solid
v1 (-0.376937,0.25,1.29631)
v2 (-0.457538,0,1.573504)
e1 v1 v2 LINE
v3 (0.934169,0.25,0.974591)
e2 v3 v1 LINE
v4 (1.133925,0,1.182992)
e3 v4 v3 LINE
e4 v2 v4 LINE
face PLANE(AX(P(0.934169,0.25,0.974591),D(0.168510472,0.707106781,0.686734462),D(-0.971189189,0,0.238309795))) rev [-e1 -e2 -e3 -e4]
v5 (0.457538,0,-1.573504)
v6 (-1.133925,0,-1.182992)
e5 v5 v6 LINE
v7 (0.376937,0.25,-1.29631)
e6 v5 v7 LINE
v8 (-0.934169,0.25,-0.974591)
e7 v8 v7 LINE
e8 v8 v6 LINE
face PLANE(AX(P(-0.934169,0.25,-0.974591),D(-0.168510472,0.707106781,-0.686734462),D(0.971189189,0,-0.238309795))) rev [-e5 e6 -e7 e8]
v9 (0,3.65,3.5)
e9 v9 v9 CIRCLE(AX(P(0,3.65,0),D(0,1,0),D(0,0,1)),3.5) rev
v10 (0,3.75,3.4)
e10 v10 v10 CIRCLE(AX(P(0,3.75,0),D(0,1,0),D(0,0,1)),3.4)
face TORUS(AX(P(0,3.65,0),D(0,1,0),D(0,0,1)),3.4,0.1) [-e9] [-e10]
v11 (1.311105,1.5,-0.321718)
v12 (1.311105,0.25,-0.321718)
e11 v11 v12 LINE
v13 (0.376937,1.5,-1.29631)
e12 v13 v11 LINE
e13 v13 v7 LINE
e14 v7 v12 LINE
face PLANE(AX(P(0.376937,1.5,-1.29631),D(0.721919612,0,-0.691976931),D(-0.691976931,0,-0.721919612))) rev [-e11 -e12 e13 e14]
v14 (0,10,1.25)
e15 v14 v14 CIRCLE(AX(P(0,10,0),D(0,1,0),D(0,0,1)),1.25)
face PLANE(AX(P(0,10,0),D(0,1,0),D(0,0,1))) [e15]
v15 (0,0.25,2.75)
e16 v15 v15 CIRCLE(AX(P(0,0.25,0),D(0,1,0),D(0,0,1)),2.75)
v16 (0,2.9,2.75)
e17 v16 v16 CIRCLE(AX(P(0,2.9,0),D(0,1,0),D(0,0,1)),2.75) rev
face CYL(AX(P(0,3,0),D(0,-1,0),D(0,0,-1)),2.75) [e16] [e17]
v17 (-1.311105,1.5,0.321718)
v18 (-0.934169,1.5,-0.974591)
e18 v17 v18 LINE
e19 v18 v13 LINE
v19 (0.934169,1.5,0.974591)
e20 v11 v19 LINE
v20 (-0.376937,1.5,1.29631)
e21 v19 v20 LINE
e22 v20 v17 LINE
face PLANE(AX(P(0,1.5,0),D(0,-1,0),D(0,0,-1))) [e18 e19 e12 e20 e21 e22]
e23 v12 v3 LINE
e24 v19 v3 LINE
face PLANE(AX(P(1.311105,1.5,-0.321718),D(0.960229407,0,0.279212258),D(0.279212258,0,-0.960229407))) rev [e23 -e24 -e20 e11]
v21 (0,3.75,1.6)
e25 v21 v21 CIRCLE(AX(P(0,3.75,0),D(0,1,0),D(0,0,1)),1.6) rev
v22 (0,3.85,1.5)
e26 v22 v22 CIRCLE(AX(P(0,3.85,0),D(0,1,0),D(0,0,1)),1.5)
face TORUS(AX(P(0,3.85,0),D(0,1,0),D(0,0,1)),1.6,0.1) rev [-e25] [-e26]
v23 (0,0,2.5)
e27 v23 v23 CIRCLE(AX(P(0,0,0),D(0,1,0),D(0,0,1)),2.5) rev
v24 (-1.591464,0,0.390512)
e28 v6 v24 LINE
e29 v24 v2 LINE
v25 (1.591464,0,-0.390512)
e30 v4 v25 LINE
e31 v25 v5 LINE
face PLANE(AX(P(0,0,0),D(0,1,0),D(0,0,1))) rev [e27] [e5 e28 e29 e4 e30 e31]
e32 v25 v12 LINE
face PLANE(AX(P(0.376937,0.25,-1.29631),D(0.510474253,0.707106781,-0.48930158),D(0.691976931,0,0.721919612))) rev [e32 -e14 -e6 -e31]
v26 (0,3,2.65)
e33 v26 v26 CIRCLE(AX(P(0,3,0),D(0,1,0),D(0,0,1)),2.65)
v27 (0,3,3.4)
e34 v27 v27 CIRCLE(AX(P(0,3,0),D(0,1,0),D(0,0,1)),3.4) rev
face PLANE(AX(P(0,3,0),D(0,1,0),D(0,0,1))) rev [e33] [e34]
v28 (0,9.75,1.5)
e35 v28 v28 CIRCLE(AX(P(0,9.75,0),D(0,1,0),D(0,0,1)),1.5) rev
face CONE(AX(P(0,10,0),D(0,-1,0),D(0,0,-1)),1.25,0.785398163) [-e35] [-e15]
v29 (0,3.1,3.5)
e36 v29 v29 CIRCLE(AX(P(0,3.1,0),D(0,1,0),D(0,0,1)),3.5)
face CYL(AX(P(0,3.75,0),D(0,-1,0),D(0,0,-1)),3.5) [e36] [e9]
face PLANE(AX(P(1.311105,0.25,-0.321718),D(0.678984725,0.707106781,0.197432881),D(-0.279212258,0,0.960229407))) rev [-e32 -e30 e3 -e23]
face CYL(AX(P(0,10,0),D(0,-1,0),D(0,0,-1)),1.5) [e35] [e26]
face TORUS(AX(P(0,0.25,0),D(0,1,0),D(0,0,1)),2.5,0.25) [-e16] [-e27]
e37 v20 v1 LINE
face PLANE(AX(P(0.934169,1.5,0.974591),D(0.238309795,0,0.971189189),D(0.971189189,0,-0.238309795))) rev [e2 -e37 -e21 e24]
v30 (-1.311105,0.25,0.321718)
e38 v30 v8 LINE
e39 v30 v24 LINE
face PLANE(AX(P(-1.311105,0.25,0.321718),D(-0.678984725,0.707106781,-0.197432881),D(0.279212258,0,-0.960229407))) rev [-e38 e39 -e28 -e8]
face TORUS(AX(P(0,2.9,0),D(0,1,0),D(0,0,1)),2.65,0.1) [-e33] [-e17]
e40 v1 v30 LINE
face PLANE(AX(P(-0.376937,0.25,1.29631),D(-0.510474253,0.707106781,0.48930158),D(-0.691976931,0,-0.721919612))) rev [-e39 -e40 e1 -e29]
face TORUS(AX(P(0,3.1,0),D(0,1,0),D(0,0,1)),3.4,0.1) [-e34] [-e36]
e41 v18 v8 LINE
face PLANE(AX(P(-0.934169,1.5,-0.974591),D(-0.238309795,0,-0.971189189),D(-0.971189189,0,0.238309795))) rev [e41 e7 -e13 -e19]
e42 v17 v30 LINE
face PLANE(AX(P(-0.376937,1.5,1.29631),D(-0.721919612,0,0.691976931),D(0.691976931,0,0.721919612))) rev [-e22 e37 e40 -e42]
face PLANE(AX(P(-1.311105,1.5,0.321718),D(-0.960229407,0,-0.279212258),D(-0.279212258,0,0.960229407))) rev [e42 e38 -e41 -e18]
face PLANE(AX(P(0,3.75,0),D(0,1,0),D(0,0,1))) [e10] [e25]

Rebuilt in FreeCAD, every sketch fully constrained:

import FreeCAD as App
import Part
import Sketcher

V = App.Vector


def edges_at(feature, points):
    """Names of the edges that pass closest to the given points."""
    edges = feature.Shape.Edges
    near = lambda p: min(range(len(edges)), key=lambda i: edges[i].distToShape(Part.Vertex(*p))[0])
    return sorted({f"Edge{near(p) + 1}" for p in points})

doc = App.newDocument("Part")
body = doc.addObject("PartDesign::Body", "Body")

sketch1 = doc.addObject("Sketcher::SketchObject", "Sketch")
body.addObject(sketch1)
sketch1.AttachmentSupport = (doc.XZ_Plane, [""])
sketch1.MapMode = "FlatFace"
sketch1.addGeometry(Part.Circle(V(0, 0, 0), V(0, 0, 1), 2.8), False)
sketch1.addConstraint(Sketcher.Constraint("Coincident", 0, 3, -1, 1))
sketch1.addConstraint(Sketcher.Constraint("Diameter", 0, 5.5))
pad1 = doc.addObject("PartDesign::Pad", "Pad")
body.addObject(pad1)
pad1.Profile = sketch1
pad1.Length = 3
pad1.Reversed = True

sketch2 = doc.addObject("Sketcher::SketchObject", "Sketch001")
body.addObject(sketch2)
sketch2.AttachmentSupport = (doc.XZ_Plane, [""])
sketch2.MapMode = "FlatFace"
sketch2.AttachmentOffset = App.Placement(V(0, 0, -3), App.Rotation())
sketch2.addGeometry(Part.Circle(V(0, 0, 0), V(0, 0, 1), 1.5), False)
sketch2.addConstraint(Sketcher.Constraint("Coincident", 0, 3, -1, 1))
sketch2.addConstraint(Sketcher.Constraint("Diameter", 0, 3.0))
pad2 = doc.addObject("PartDesign::Pad", "Pad001")
body.addObject(pad2)
pad2.Profile = sketch2
pad2.Length = 7
pad2.Reversed = True

sketch3 = doc.addObject("Sketcher::SketchObject", "Sketch002")
body.addObject(sketch3)
sketch3.AttachmentSupport = (doc.XZ_Plane, [""])
sketch3.MapMode = "FlatFace"
sketch3.addGeometry(Part.LineSegment(V(0.9, 1, 0), V(-0.4, 1.3, 0)), False)
sketch3.addGeometry(Part.LineSegment(V(-0.4, 1.3, 0), V(-1.3, 0.3, 0)), False)
sketch3.addGeometry(Part.LineSegment(V(-1.3, 0.3, 0), V(-0.9, -1, 0)), False)
sketch3.addGeometry(Part.LineSegment(V(-0.9, -1, 0), V(0.4, -1.3, 0)), False)
sketch3.addGeometry(Part.LineSegment(V(0.4, -1.3, 0), V(1.3, -0.3, 0)), False)
sketch3.addGeometry(Part.LineSegment(V(1.3, -0.3, 0), V(0.9, 1, 0)), False)
sketch3.addConstraint(Sketcher.Constraint("Coincident", 0, 2, 1, 1))
sketch3.addConstraint(Sketcher.Constraint("Coincident", 1, 2, 2, 1))
sketch3.addConstraint(Sketcher.Constraint("Coincident", 2, 2, 3, 1))
sketch3.addConstraint(Sketcher.Constraint("Coincident", 3, 2, 4, 1))
sketch3.addConstraint(Sketcher.Constraint("Coincident", 4, 2, 5, 1))
sketch3.addConstraint(Sketcher.Constraint("Coincident", 5, 2, 0, 1))
sketch3.addConstraint(Sketcher.Constraint("Symmetric", 0, 2, 3, 2, -1, 1))
sketch3.addConstraint(Sketcher.Constraint("Symmetric", 1, 2, 4, 2, -1, 1))
sketch3.addConstraint(Sketcher.Constraint("Symmetric", 2, 2, 5, 2, -1, 1))
sketch3.addConstraint(Sketcher.Constraint("Equal", 0, 1))
sketch3.addConstraint(Sketcher.Constraint("Equal", 1, 2))
sketch3.addConstraint(Sketcher.Constraint("Distance", 0, 1.35))
sketch3.addConstraint(Sketcher.Constraint("DistanceY", 2, 2, 0, 2, 2.270901))
sketch3.addConstraint(Sketcher.Constraint("DistanceY", -1, 1, 0, 2, 1.29631))
sketch3.addConstraint(Sketcher.Constraint("DistanceY", -1, 1, 1, 2, 0.321718))
pocket1 = doc.addObject("PartDesign::Pocket", "Pocket")
body.addObject(pocket1)
pocket1.Profile = sketch3
pocket1.Length = 1.5
doc.recompute()

chamfer = doc.addObject("PartDesign::Chamfer", "Chamfer")
body.addObject(chamfer)
chamfer.Base = (pocket1, edges_at(pocket1, [
    (1.123, 0, 0.326),
    (0.279, 0, 1.135),
    (-0.844, 0, 0.809),
    (-1.123, 0, -0.326),
    (-0.279, 0, -1.135),
    (0.844, 0, -0.809),
]))
chamfer.Size = 0.25
doc.recompute()

fillet = doc.addObject("PartDesign::Fillet", "Fillet")
body.addObject(fillet)
fillet.Base = (chamfer, edges_at(chamfer, [(0, 0, -2.75)]))
fillet.Radius = 0.25
doc.recompute()

chamfer2 = doc.addObject("PartDesign::Chamfer", "Chamfer001")
body.addObject(chamfer2)
chamfer2.Base = (fillet, edges_at(fillet, [(0, 10, -1.5)]))
chamfer2.Size = 0.25
doc.recompute()

fillet2 = doc.addObject("PartDesign::Fillet", "Fillet001")
body.addObject(fillet2)
fillet2.Base = (chamfer2, edges_at(chamfer2, [(0, 3, -2.75)]))
fillet2.Radius = 0.1

sketch4 = doc.addObject("Sketcher::SketchObject", "Sketch003")
body.addObject(sketch4)
sketch4.AttachmentSupport = (doc.XZ_Plane, [""])
sketch4.MapMode = "FlatFace"
sketch4.AttachmentOffset = App.Placement(V(0, 0, -3), App.Rotation())
sketch4.addGeometry(Part.Circle(V(0, 0, 0), V(0, 0, 1), 3.5), False)
sketch4.addGeometry(Part.Circle(V(0, 0, 0), V(0, 0, 1), 1.5), False)
sketch4.addConstraint(Sketcher.Constraint("Coincident", 0, 3, -1, 1))
sketch4.addConstraint(Sketcher.Constraint("Coincident", 1, 3, -1, 1))
sketch4.addConstraint(Sketcher.Constraint("Diameter", 0, 7.0))
sketch4.addConstraint(Sketcher.Constraint("Diameter", 1, 3.0))
pad3 = doc.addObject("PartDesign::Pad", "Pad002")
body.addObject(pad3)
pad3.Profile = sketch4
pad3.Length = 0.75
pad3.Reversed = True
doc.recompute()

fillet3 = doc.addObject("PartDesign::Fillet", "Fillet002")
body.addObject(fillet3)
fillet3.Base = (pad3, edges_at(pad3, [(0, 3.75, -3.5), (0, 3, -3.5), (0, 3.75, -1.5)]))
fillet3.Radius = 0.1

doc.recompute()
